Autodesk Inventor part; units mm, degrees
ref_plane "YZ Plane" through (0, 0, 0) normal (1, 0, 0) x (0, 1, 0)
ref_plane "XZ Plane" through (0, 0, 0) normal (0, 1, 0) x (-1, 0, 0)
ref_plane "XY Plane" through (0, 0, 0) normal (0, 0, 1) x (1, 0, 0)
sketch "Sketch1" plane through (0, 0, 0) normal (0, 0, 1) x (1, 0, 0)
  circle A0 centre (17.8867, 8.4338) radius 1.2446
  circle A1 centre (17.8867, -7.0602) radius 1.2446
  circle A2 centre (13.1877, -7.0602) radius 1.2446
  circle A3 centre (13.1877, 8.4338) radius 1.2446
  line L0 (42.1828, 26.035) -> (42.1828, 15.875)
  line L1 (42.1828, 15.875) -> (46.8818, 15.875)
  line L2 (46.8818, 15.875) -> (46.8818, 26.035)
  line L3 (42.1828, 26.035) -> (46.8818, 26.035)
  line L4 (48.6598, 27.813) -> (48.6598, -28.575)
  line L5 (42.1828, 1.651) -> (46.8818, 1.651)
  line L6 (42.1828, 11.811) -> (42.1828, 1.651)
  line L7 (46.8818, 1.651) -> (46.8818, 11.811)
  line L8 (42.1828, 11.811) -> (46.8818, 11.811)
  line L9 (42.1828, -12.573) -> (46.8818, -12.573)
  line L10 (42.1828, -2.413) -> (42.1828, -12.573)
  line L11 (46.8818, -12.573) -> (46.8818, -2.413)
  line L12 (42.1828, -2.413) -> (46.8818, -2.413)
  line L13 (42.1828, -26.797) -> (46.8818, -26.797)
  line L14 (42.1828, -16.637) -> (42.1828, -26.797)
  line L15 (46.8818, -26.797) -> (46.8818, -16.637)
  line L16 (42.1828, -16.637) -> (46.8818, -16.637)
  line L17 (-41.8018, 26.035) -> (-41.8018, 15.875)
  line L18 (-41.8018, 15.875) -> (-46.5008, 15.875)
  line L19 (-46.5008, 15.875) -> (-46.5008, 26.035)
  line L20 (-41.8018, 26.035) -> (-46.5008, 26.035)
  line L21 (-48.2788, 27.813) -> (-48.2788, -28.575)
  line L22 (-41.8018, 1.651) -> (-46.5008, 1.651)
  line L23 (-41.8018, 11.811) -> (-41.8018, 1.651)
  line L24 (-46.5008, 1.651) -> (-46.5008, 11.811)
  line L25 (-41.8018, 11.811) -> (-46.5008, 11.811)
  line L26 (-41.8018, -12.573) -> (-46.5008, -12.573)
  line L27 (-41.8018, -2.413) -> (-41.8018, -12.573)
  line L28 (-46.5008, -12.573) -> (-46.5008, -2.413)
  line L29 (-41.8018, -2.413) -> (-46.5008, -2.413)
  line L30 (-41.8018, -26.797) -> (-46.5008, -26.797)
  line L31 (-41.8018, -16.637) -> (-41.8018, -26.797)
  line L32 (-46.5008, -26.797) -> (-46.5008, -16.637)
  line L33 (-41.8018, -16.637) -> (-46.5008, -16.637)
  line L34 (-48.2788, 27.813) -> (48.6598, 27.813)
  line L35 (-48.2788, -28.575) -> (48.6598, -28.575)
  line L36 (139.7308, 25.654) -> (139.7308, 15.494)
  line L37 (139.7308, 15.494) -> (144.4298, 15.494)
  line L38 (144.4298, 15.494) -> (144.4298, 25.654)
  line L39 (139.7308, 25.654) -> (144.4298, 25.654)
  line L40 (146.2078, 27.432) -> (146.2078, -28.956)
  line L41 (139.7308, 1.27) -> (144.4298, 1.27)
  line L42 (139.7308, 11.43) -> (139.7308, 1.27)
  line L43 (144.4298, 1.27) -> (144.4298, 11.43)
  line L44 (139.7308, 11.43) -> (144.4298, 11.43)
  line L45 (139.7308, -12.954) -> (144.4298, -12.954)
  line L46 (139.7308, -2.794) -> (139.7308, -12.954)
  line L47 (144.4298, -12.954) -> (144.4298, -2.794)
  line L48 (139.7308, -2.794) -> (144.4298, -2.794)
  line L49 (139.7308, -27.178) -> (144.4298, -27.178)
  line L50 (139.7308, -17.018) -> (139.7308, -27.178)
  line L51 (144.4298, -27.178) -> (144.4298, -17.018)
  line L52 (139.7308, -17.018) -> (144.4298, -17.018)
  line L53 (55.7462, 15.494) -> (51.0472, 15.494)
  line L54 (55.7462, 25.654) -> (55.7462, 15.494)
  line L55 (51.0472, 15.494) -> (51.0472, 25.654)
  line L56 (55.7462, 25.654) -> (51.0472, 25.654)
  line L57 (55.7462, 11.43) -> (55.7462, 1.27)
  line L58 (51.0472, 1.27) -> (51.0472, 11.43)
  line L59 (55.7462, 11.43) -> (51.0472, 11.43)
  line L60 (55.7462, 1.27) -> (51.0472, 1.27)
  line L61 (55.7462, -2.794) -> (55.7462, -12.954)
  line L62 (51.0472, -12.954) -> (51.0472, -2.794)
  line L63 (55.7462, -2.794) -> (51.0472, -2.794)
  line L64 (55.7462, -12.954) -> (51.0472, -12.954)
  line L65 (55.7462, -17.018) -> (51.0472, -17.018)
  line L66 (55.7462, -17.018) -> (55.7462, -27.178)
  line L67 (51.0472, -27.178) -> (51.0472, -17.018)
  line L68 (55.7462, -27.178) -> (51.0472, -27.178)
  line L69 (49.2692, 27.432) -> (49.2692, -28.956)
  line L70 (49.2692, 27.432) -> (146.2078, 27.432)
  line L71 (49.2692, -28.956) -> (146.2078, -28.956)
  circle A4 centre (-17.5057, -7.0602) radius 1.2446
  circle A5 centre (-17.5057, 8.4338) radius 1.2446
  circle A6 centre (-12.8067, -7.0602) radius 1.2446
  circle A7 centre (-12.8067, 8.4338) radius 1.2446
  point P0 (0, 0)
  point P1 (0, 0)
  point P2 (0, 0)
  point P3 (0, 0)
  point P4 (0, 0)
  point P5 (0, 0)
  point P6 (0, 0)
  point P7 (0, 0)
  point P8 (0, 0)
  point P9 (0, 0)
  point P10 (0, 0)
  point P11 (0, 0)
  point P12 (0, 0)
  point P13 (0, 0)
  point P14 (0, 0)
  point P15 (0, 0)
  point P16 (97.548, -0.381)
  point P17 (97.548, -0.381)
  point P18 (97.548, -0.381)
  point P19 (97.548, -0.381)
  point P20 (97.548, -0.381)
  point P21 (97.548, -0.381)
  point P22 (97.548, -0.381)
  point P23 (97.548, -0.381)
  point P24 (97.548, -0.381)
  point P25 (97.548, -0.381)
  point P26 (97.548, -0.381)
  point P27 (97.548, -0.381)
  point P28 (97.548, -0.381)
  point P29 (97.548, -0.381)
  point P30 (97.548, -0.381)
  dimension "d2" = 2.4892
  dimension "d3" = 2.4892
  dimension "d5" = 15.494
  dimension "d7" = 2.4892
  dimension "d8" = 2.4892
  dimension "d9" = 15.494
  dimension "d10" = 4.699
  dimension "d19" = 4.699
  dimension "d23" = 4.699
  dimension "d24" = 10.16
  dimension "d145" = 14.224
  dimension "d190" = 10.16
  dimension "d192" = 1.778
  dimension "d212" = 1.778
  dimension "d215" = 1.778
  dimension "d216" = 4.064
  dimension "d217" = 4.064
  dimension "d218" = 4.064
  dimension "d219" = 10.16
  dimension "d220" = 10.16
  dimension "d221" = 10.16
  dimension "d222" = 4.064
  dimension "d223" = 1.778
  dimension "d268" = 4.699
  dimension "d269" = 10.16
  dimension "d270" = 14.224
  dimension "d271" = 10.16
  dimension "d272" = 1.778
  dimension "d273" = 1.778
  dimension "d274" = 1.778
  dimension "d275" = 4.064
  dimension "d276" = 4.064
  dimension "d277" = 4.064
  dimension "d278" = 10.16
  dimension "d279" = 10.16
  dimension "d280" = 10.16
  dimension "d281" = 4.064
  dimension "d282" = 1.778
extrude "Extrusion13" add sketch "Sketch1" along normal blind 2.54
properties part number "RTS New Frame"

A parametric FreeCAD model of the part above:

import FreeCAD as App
import Part
import Sketcher
from FreeCAD import Vector
Q = App.Units.Quantity

doc = App.newDocument("Part")
body = doc.addObject("PartDesign::Body", "Body")
body.AllowCompound = True

sketch1 = body.newObject("Sketcher::SketchObject", "Sketch")
sketch1.AttachmentSupport = (doc.getObject("XY_Plane"), [""])
sketch1.MapMode = "FlatFace"
sketch1.addGeometry([
    Part.LineSegment(Vector(48.7, -28.6, 0), Vector(48.7, 27.8, 0)),
    Part.LineSegment(Vector(48.7, 27.8, 0), Vector(-48.3, 27.8, 0)),
    Part.LineSegment(Vector(-48.3, 27.8, 0), Vector(-48.3, -28.6, 0)),
    Part.LineSegment(Vector(-48.3, -28.6, 0), Vector(48.7, -28.6, 0)),
    Part.LineSegment(Vector(-41.8, -16.6, 0), Vector(-41.8, -26.8, 0)),
    Part.LineSegment(Vector(-41.8, -26.8, 0), Vector(-46.5, -26.8, 0)),
    Part.LineSegment(Vector(-46.5, -26.8, 0), Vector(-46.5, -16.6, 0)),
    Part.LineSegment(Vector(-46.5, -16.6, 0), Vector(-41.8, -16.6, 0)),
    Part.LineSegment(Vector(46.9, -26.8, 0), Vector(42.2, -26.8, 0)),
    Part.LineSegment(Vector(42.2, -26.8, 0), Vector(42.2, -16.6, 0)),
    Part.LineSegment(Vector(42.2, -16.6, 0), Vector(46.9, -16.6, 0)),
    Part.LineSegment(Vector(46.9, -16.6, 0), Vector(46.9, -26.8, 0)),
    Part.LineSegment(Vector(-41.8, -2.4, 0), Vector(-41.8, -12.6, 0)),
    Part.LineSegment(Vector(-41.8, -12.6, 0), Vector(-46.5, -12.6, 0)),
    Part.LineSegment(Vector(-46.5, -12.6, 0), Vector(-46.5, -2.4, 0)),
    Part.LineSegment(Vector(-46.5, -2.4, 0), Vector(-41.8, -2.4, 0)),
    Part.Circle(Vector(-17.5, -7.1, 0), Vector(0, 0, 1), 1.2),
    Part.Circle(Vector(-12.8, -7.1, 0), Vector(0, 0, 1), 1.2),
    Part.Circle(Vector(13.2, -7.1, 0), Vector(0, 0, 1), 1.2),
    Part.Circle(Vector(17.9, -7.1, 0), Vector(0, 0, 1), 1.2),
    Part.LineSegment(Vector(46.9, -12.6, 0), Vector(42.2, -12.6, 0)),
    Part.LineSegment(Vector(42.2, -12.6, 0), Vector(42.2, -2.4, 0)),
    Part.LineSegment(Vector(42.2, -2.4, 0), Vector(46.9, -2.4, 0)),
    Part.LineSegment(Vector(46.9, -2.4, 0), Vector(46.9, -12.6, 0)),
    Part.LineSegment(Vector(-41.8, 11.8, 0), Vector(-41.8, 1.7, 0)),
    Part.LineSegment(Vector(-41.8, 1.7, 0), Vector(-46.5, 1.7, 0)),
    Part.LineSegment(Vector(-46.5, 1.7, 0), Vector(-46.5, 11.8, 0)),
    Part.LineSegment(Vector(-46.5, 11.8, 0), Vector(-41.8, 11.8, 0)),
    Part.Circle(Vector(-17.5, 8.4, 0), Vector(0, 0, 1), 1.2),
    Part.Circle(Vector(-12.8, 8.4, 0), Vector(0, 0, 1), 1.2),
    Part.Circle(Vector(13.2, 8.4, 0), Vector(0, 0, 1), 1.2),
    Part.Circle(Vector(17.9, 8.4, 0), Vector(0, 0, 1), 1.2),
    Part.LineSegment(Vector(46.9, 1.7, 0), Vector(42.2, 1.7, 0)),
    Part.LineSegment(Vector(42.2, 1.7, 0), Vector(42.2, 11.8, 0)),
    Part.LineSegment(Vector(42.2, 11.8, 0), Vector(46.9, 11.8, 0)),
    Part.LineSegment(Vector(46.9, 11.8, 0), Vector(46.9, 1.7, 0)),
    Part.LineSegment(Vector(-46.5, 26, 0), Vector(-41.8, 26, 0)),
    Part.LineSegment(Vector(-41.8, 26, 0), Vector(-41.8, 15.9, 0)),
    Part.LineSegment(Vector(-41.8, 15.9, 0), Vector(-46.5, 15.9, 0)),
    Part.LineSegment(Vector(-46.5, 15.9, 0), Vector(-46.5, 26, 0)),
    Part.LineSegment(Vector(42.2, 15.9, 0), Vector(42.2, 26, 0)),
    Part.LineSegment(Vector(42.2, 26, 0), Vector(46.9, 26, 0)),
    Part.LineSegment(Vector(46.9, 26, 0), Vector(46.9, 15.9, 0)),
    Part.LineSegment(Vector(46.9, 15.9, 0), Vector(42.2, 15.9, 0)),
    Part.LineSegment(Vector(146.2, -29, 0), Vector(146.2, 27.4, 0)),
    Part.LineSegment(Vector(146.2, 27.4, 0), Vector(49.3, 27.4, 0)),
    Part.LineSegment(Vector(49.3, 27.4, 0), Vector(49.3, -29, 0)),
    Part.LineSegment(Vector(49.3, -29, 0), Vector(146.2, -29, 0)),
    Part.LineSegment(Vector(51, -17, 0), Vector(55.7, -17, 0)),
    Part.LineSegment(Vector(55.7, -17, 0), Vector(55.7, -27.2, 0)),
    Part.LineSegment(Vector(55.7, -27.2, 0), Vector(51, -27.2, 0)),
    Part.LineSegment(Vector(51, -27.2, 0), Vector(51, -17, 0)),
    Part.LineSegment(Vector(144.4, -27.2, 0), Vector(139.7, -27.2, 0)),
    Part.LineSegment(Vector(139.7, -27.2, 0), Vector(139.7, -17, 0)),
    Part.LineSegment(Vector(139.7, -17, 0), Vector(144.4, -17, 0)),
    Part.LineSegment(Vector(144.4, -17, 0), Vector(144.4, -27.2, 0)),
    Part.LineSegment(Vector(51, -2.8, 0), Vector(55.7, -2.8, 0)),
    Part.LineSegment(Vector(55.7, -2.8, 0), Vector(55.7, -13, 0)),
    Part.LineSegment(Vector(55.7, -13, 0), Vector(51, -13, 0)),
    Part.LineSegment(Vector(51, -13, 0), Vector(51, -2.8, 0)),
    Part.LineSegment(Vector(144.4, -13, 0), Vector(139.7, -13, 0)),
    Part.LineSegment(Vector(139.7, -13, 0), Vector(139.7, -2.8, 0)),
    Part.LineSegment(Vector(139.7, -2.8, 0), Vector(144.4, -2.8, 0)),
    Part.LineSegment(Vector(144.4, -2.8, 0), Vector(144.4, -13, 0)),
    Part.LineSegment(Vector(51, 11.4, 0), Vector(55.7, 11.4, 0)),
    Part.LineSegment(Vector(55.7, 11.4, 0), Vector(55.7, 1.3, 0)),
    Part.LineSegment(Vector(55.7, 1.3, 0), Vector(51, 1.3, 0)),
    Part.LineSegment(Vector(51, 1.3, 0), Vector(51, 11.4, 0)),
    Part.LineSegment(Vector(144.4, 1.3, 0), Vector(139.7, 1.3, 0)),
    Part.LineSegment(Vector(139.7, 1.3, 0), Vector(139.7, 11.4, 0)),
    Part.LineSegment(Vector(139.7, 11.4, 0), Vector(144.4, 11.4, 0)),
    Part.LineSegment(Vector(144.4, 11.4, 0), Vector(144.4, 1.3, 0)),
    Part.LineSegment(Vector(55.7, 25.7, 0), Vector(55.7, 15.5, 0)),
    Part.LineSegment(Vector(55.7, 15.5, 0), Vector(51, 15.5, 0)),
    Part.LineSegment(Vector(51, 15.5, 0), Vector(51, 25.7, 0)),
    Part.LineSegment(Vector(51, 25.7, 0), Vector(55.7, 25.7, 0)),
    Part.LineSegment(Vector(139.7, 15.5, 0), Vector(139.7, 25.7, 0)),
    Part.LineSegment(Vector(139.7, 25.7, 0), Vector(144.4, 25.7, 0)),
    Part.LineSegment(Vector(144.4, 25.7, 0), Vector(144.4, 15.5, 0)),
    Part.LineSegment(Vector(144.4, 15.5, 0), Vector(139.7, 15.5, 0)),
], False)
sketch1.addConstraint([
    Sketcher.Constraint("Coincident", 0, 2, 1, 1),
    Sketcher.Constraint("Coincident", 1, 2, 2, 1),
    Sketcher.Constraint("Coincident", 2, 2, 3, 1),
    Sketcher.Constraint("Coincident", 3, 2, 0, 1),
    Sketcher.Constraint("Coincident", 4, 2, 5, 1),
    Sketcher.Constraint("Coincident", 5, 2, 6, 1),
    Sketcher.Constraint("Coincident", 6, 2, 7, 1),
    Sketcher.Constraint("Coincident", 7, 2, 4, 1),
    Sketcher.Constraint("Coincident", 8, 2, 9, 1),
    Sketcher.Constraint("Coincident", 9, 2, 10, 1),
    Sketcher.Constraint("Coincident", 10, 2, 11, 1),
    Sketcher.Constraint("Coincident", 11, 2, 8, 1),
    Sketcher.Constraint("Coincident", 12, 2, 13, 1),
    Sketcher.Constraint("Coincident", 13, 2, 14, 1),
    Sketcher.Constraint("Coincident", 14, 2, 15, 1),
    Sketcher.Constraint("Coincident", 15, 2, 12, 1),
    Sketcher.Constraint("Coincident", 20, 2, 21, 1),
    Sketcher.Constraint("Coincident", 21, 2, 22, 1),
    Sketcher.Constraint("Coincident", 22, 2, 23, 1),
    Sketcher.Constraint("Coincident", 23, 2, 20, 1),
    Sketcher.Constraint("Coincident", 24, 2, 25, 1),
    Sketcher.Constraint("Coincident", 25, 2, 26, 1),
    Sketcher.Constraint("Coincident", 26, 2, 27, 1),
    Sketcher.Constraint("Coincident", 27, 2, 24, 1),
    Sketcher.Constraint("Coincident", 32, 2, 33, 1),
    Sketcher.Constraint("Coincident", 33, 2, 34, 1),
    Sketcher.Constraint("Coincident", 34, 2, 35, 1),
    Sketcher.Constraint("Coincident", 35, 2, 32, 1),
    Sketcher.Constraint("Coincident", 36, 2, 37, 1),
    Sketcher.Constraint("Coincident", 37, 2, 38, 1),
    Sketcher.Constraint("Coincident", 38, 2, 39, 1),
    Sketcher.Constraint("Coincident", 39, 2, 36, 1),
    Sketcher.Constraint("Coincident", 40, 2, 41, 1),
    Sketcher.Constraint("Coincident", 41, 2, 42, 1),
    Sketcher.Constraint("Coincident", 42, 2, 43, 1),
    Sketcher.Constraint("Coincident", 43, 2, 40, 1),
    Sketcher.Constraint("Coincident", 44, 2, 45, 1),
    Sketcher.Constraint("Coincident", 45, 2, 46, 1),
    Sketcher.Constraint("Coincident", 46, 2, 47, 1),
    Sketcher.Constraint("Coincident", 47, 2, 44, 1),
    Sketcher.Constraint("Coincident", 48, 2, 49, 1),
    Sketcher.Constraint("Coincident", 49, 2, 50, 1),
    Sketcher.Constraint("Coincident", 50, 2, 51, 1),
    Sketcher.Constraint("Coincident", 51, 2, 48, 1),
    Sketcher.Constraint("Coincident", 52, 2, 53, 1),
    Sketcher.Constraint("Coincident", 53, 2, 54, 1),
    Sketcher.Constraint("Coincident", 54, 2, 55, 1),
    Sketcher.Constraint("Coincident", 55, 2, 52, 1),
    Sketcher.Constraint("Coincident", 56, 2, 57, 1),
    Sketcher.Constraint("Coincident", 57, 2, 58, 1),
    Sketcher.Constraint("Coincident", 58, 2, 59, 1),
    Sketcher.Constraint("Coincident", 59, 2, 56, 1),
    Sketcher.Constraint("Coincident", 60, 2, 61, 1),
    Sketcher.Constraint("Coincident", 61, 2, 62, 1),
    Sketcher.Constraint("Coincident", 62, 2, 63, 1),
    Sketcher.Constraint("Coincident", 63, 2, 60, 1),
    Sketcher.Constraint("Coincident", 64, 2, 65, 1),
    Sketcher.Constraint("Coincident", 65, 2, 66, 1),
    Sketcher.Constraint("Coincident", 66, 2, 67, 1),
    Sketcher.Constraint("Coincident", 67, 2, 64, 1),
    Sketcher.Constraint("Coincident", 68, 2, 69, 1),
    Sketcher.Constraint("Coincident", 69, 2, 70, 1),
    Sketcher.Constraint("Coincident", 70, 2, 71, 1),
    Sketcher.Constraint("Coincident", 71, 2, 68, 1),
    Sketcher.Constraint("Coincident", 72, 2, 73, 1),
    Sketcher.Constraint("Coincident", 73, 2, 74, 1),
    Sketcher.Constraint("Coincident", 74, 2, 75, 1),
    Sketcher.Constraint("Coincident", 75, 2, 72, 1),
    Sketcher.Constraint("Coincident", 76, 2, 77, 1),
    Sketcher.Constraint("Coincident", 77, 2, 78, 1),
    Sketcher.Constraint("Coincident", 78, 2, 79, 1),
    Sketcher.Constraint("Coincident", 79, 2, 76, 1),
    Sketcher.Constraint("Vertical", 0),
    Sketcher.Constraint("Horizontal", 1),
    Sketcher.Constraint("Vertical", 2),
    Sketcher.Constraint("Horizontal", 3),
    Sketcher.Constraint("Vertical", 4),
    Sketcher.Constraint("Horizontal", 5),
    Sketcher.Constraint("Vertical", 6),
    Sketcher.Constraint("Horizontal", 7),
    Sketcher.Constraint("Horizontal", 8),
    Sketcher.Constraint("Vertical", 9),
    Sketcher.Constraint("Horizontal", 10),
    Sketcher.Constraint("Vertical", 11),
    Sketcher.Constraint("Vertical", 12),
    Sketcher.Constraint("Horizontal", 13),
    Sketcher.Constraint("Vertical", 14),
    Sketcher.Constraint("Horizontal", 15),
    Sketcher.Constraint("Horizontal", 20),
    Sketcher.Constraint("Vertical", 21),
    Sketcher.Constraint("Horizontal", 22),
    Sketcher.Constraint("Vertical", 23),
    Sketcher.Constraint("Vertical", 24),
    Sketcher.Constraint("Horizontal", 25),
    Sketcher.Constraint("Vertical", 26),
    Sketcher.Constraint("Horizontal", 27),
    Sketcher.Constraint("Horizontal", 32),
    Sketcher.Constraint("Vertical", 33),
    Sketcher.Constraint("Horizontal", 34),
    Sketcher.Constraint("Vertical", 35),
    Sketcher.Constraint("Horizontal", 36),
    Sketcher.Constraint("Vertical", 37),
    Sketcher.Constraint("Horizontal", 38),
    Sketcher.Constraint("Vertical", 39),
    Sketcher.Constraint("Vertical", 40),
    Sketcher.Constraint("Horizontal", 41),
    Sketcher.Constraint("Vertical", 42),
    Sketcher.Constraint("Horizontal", 43),
    Sketcher.Constraint("Vertical", 44),
    Sketcher.Constraint("Horizontal", 45),
    Sketcher.Constraint("Vertical", 46),
    Sketcher.Constraint("Horizontal", 47),
    Sketcher.Constraint("Horizontal", 48),
    Sketcher.Constraint("Vertical", 49),
    Sketcher.Constraint("Horizontal", 50),
    Sketcher.Constraint("Vertical", 51),
    Sketcher.Constraint("Horizontal", 52),
    Sketcher.Constraint("Vertical", 53),
    Sketcher.Constraint("Horizontal", 54),
    Sketcher.Constraint("Vertical", 55),
    Sketcher.Constraint("Horizontal", 56),
    Sketcher.Constraint("Vertical", 57),
    Sketcher.Constraint("Horizontal", 58),
    Sketcher.Constraint("Vertical", 59),
    Sketcher.Constraint("Horizontal", 60),
    Sketcher.Constraint("Vertical", 61),
    Sketcher.Constraint("Horizontal", 62),
    Sketcher.Constraint("Vertical", 63),
    Sketcher.Constraint("Horizontal", 64),
    Sketcher.Constraint("Vertical", 65),
    Sketcher.Constraint("Horizontal", 66),
    Sketcher.Constraint("Vertical", 67),
    Sketcher.Constraint("Horizontal", 68),
    Sketcher.Constraint("Vertical", 69),
    Sketcher.Constraint("Horizontal", 70),
    Sketcher.Constraint("Vertical", 71),
    Sketcher.Constraint("Vertical", 72),
    Sketcher.Constraint("Horizontal", 73),
    Sketcher.Constraint("Vertical", 74),
    Sketcher.Constraint("Horizontal", 75),
    Sketcher.Constraint("Vertical", 76),
    Sketcher.Constraint("Horizontal", 77),
    Sketcher.Constraint("Vertical", 78),
    Sketcher.Constraint("Horizontal", 79),
    Sketcher.Constraint("Equal", 16, 17),
    Sketcher.Constraint("Equal", 17, 18),
    Sketcher.Constraint("Equal", 18, 19),
    Sketcher.Constraint("Equal", 19, 28),
    Sketcher.Constraint("Equal", 28, 29),
    Sketcher.Constraint("Equal", 29, 30),
    Sketcher.Constraint("Equal", 30, 31),
    Sketcher.Constraint("Horizontal", 16, 3, 17, 3),
    Sketcher.Constraint("Horizontal", 17, 3, 18, 3),
    Sketcher.Constraint("Horizontal", 18, 3, 19, 3),
    Sketcher.Constraint("Horizontal", 28, 3, 29, 3),
    Sketcher.Constraint("Horizontal", 29, 3, 30, 3),
    Sketcher.Constraint("Horizontal", 30, 3, 31, 3),
    Sketcher.Constraint("Horizontal", 5, 2, 8, 2),
    Sketcher.Constraint("Horizontal", 7, 2, 9, 2),
    Sketcher.Constraint("Horizontal", 13, 2, 20, 2),
    Sketcher.Constraint("Horizontal", 15, 2, 21, 2),
    Sketcher.Constraint("Horizontal", 25, 2, 32, 2),
    Sketcher.Constraint("Horizontal", 27, 2, 33, 2),
    Sketcher.Constraint("Horizontal", 39, 2, 40, 2),
    Sketcher.Constraint("Horizontal", 38, 2, 42, 2),
    Sketcher.Constraint("Horizontal", 50, 2, 52, 2),
    Sketcher.Constraint("Horizontal", 51, 2, 53, 2),
    Sketcher.Constraint("Horizontal", 58, 2, 60, 2),
    Sketcher.Constraint("Horizontal", 59, 2, 61, 2),
    Sketcher.Constraint("Horizontal", 66, 2, 68, 2),
    Sketcher.Constraint("Horizontal", 67, 2, 69, 2),
    Sketcher.Constraint("Horizontal", 75, 2, 76, 2),
    Sketcher.Constraint("Horizontal", 73, 2, 78, 2),
    Sketcher.Constraint("Vertical", 16, 3, 28, 3),
    Sketcher.Constraint("Vertical", 17, 3, 29, 3),
    Sketcher.Constraint("Vertical", 18, 3, 30, 3),
    Sketcher.Constraint("Vertical", 19, 3, 31, 3),
    Sketcher.Constraint("Vertical", 7, 2, 12, 2),
    Sketcher.Constraint("Vertical", 6, 2, 13, 2),
    Sketcher.Constraint("Vertical", 9, 2, 20, 2),
    Sketcher.Constraint("Vertical", 11, 2, 22, 2),
    Sketcher.Constraint("Vertical", 15, 2, 24, 2),
    Sketcher.Constraint("Vertical", 14, 2, 25, 2),
    Sketcher.Constraint("Vertical", 21, 2, 32, 2),
    Sketcher.Constraint("Vertical", 23, 2, 34, 2),
    Sketcher.Constraint("Vertical", 27, 2, 36, 2),
    Sketcher.Constraint("Vertical", 26, 2, 38, 2),
    Sketcher.Constraint("Vertical", 33, 2, 40, 2),
    Sketcher.Constraint("Vertical", 35, 2, 41, 2),
    Sketcher.Constraint("Vertical", 49, 2, 56, 2),
    Sketcher.Constraint("Vertical", 51, 2, 58, 2),
    Sketcher.Constraint("Vertical", 53, 2, 60, 2),
    Sketcher.Constraint("Vertical", 55, 2, 62, 2),
    Sketcher.Constraint("Vertical", 57, 2, 64, 2),
    Sketcher.Constraint("Vertical", 59, 2, 66, 2),
    Sketcher.Constraint("Vertical", 61, 2, 68, 2),
    Sketcher.Constraint("Vertical", 63, 2, 70, 2),
    Sketcher.Constraint("Vertical", 65, 2, 72, 2),
    Sketcher.Constraint("Vertical", 67, 2, 73, 2),
    Sketcher.Constraint("Vertical", 69, 2, 76, 2),
    Sketcher.Constraint("Vertical", 71, 2, 77, 2),
    Sketcher.Constraint("Equal", 7, 8),
    Sketcher.Constraint("Equal", 3, 45),
    Sketcher.Constraint("Equal", 43, 48),
    Sketcher.Constraint("Equal", 50, 52),
    Sketcher.Constraint("Equal", 11, 12),
    Sketcher.Constraint("Equal", 23, 24),
    Sketcher.Constraint("Equal", 35, 37),
    Sketcher.Constraint("Equal", 2, 44),
    Sketcher.Constraint("Equal", 42, 49),
    Sketcher.Constraint("Equal", 55, 57),
    Sketcher.Constraint("Equal", 63, 65),
    Sketcher.Constraint("Equal", 71, 72),
    Sketcher.Constraint("Diameter", 16, Q("0.098 in")),
    Sketcher.Constraint("DistanceY", 4, 2, 4, 1, Q("0.4 in")),
    Sketcher.Constraint("DistanceX", 5, 2, 5, 1, Q("0.185 in")),
    Sketcher.Constraint("DistanceY", -1, 1, 72, 2, Q("0.61 in")),
    Sketcher.Constraint("DistanceY", 0, 1, 0, 2, Q("2.22 in")),
    Sketcher.Constraint("DistanceY", -1, 1, 44, 2, Q("1.08 in")),
    Sketcher.Constraint("DistanceY", 48, 2, -1, 1, Q("0.67 in")),
    Sketcher.Constraint("DistanceY", 56, 2, -1, 1, Q("0.11 in")),
    Sketcher.Constraint("DistanceY", -1, 1, 64, 2, Q("0.45 in")),
    Sketcher.Constraint("DistanceY", -1, 1, 0, 2, Q("1.095 in")),
    Sketcher.Constraint("DistanceY", 4, 2, -1, 1, Q("1.055 in")),
    Sketcher.Constraint("DistanceY", 12, 2, -1, 1, Q("0.495 in")),
    Sketcher.Constraint("DistanceY", -1, 1, 24, 2, Q("0.065 in")),
    Sketcher.Constraint("DistanceY", -1, 1, 36, 2, Q("1.025 in")),
    Sketcher.Constraint("DistanceX", 1, 2, 1, 1, 96.9386),
    Sketcher.Constraint("DistanceX", 16, 3, -1, 1, Q("0.6892 in")),
    Sketcher.Constraint("DistanceX", 17, 3, -1, 1, Q("0.5042 in")),
    Sketcher.Constraint("DistanceX", -1, 1, 18, 3, Q("0.5192 in")),
    Sketcher.Constraint("DistanceX", -1, 1, 19, 3, Q("0.7042 in")),
    Sketcher.Constraint("DistanceY", 16, 3, -1, 1, 7.0602),
    Sketcher.Constraint("DistanceY", -1, 1, 28, 3, 8.4338),
    Sketcher.Constraint("DistanceX", -1, 1, 0, 2, 48.6598),
    Sketcher.Constraint("DistanceX", 4, 2, -1, 1, 41.8018),
    Sketcher.Constraint("DistanceX", -1, 1, 8, 2, 42.1828),
    Sketcher.Constraint("DistanceX", -1, 1, 44, 2, 146.2078),
    Sketcher.Constraint("DistanceX", -1, 1, 48, 2, 55.7462),
    Sketcher.Constraint("DistanceX", -1, 1, 52, 2, 139.7308),
])
pad1 = body.newObject("PartDesign::Pad", "Pad")
pad1.Profile = sketch1
pad1.Length = Q("0.1 in")

doc.recompute()
